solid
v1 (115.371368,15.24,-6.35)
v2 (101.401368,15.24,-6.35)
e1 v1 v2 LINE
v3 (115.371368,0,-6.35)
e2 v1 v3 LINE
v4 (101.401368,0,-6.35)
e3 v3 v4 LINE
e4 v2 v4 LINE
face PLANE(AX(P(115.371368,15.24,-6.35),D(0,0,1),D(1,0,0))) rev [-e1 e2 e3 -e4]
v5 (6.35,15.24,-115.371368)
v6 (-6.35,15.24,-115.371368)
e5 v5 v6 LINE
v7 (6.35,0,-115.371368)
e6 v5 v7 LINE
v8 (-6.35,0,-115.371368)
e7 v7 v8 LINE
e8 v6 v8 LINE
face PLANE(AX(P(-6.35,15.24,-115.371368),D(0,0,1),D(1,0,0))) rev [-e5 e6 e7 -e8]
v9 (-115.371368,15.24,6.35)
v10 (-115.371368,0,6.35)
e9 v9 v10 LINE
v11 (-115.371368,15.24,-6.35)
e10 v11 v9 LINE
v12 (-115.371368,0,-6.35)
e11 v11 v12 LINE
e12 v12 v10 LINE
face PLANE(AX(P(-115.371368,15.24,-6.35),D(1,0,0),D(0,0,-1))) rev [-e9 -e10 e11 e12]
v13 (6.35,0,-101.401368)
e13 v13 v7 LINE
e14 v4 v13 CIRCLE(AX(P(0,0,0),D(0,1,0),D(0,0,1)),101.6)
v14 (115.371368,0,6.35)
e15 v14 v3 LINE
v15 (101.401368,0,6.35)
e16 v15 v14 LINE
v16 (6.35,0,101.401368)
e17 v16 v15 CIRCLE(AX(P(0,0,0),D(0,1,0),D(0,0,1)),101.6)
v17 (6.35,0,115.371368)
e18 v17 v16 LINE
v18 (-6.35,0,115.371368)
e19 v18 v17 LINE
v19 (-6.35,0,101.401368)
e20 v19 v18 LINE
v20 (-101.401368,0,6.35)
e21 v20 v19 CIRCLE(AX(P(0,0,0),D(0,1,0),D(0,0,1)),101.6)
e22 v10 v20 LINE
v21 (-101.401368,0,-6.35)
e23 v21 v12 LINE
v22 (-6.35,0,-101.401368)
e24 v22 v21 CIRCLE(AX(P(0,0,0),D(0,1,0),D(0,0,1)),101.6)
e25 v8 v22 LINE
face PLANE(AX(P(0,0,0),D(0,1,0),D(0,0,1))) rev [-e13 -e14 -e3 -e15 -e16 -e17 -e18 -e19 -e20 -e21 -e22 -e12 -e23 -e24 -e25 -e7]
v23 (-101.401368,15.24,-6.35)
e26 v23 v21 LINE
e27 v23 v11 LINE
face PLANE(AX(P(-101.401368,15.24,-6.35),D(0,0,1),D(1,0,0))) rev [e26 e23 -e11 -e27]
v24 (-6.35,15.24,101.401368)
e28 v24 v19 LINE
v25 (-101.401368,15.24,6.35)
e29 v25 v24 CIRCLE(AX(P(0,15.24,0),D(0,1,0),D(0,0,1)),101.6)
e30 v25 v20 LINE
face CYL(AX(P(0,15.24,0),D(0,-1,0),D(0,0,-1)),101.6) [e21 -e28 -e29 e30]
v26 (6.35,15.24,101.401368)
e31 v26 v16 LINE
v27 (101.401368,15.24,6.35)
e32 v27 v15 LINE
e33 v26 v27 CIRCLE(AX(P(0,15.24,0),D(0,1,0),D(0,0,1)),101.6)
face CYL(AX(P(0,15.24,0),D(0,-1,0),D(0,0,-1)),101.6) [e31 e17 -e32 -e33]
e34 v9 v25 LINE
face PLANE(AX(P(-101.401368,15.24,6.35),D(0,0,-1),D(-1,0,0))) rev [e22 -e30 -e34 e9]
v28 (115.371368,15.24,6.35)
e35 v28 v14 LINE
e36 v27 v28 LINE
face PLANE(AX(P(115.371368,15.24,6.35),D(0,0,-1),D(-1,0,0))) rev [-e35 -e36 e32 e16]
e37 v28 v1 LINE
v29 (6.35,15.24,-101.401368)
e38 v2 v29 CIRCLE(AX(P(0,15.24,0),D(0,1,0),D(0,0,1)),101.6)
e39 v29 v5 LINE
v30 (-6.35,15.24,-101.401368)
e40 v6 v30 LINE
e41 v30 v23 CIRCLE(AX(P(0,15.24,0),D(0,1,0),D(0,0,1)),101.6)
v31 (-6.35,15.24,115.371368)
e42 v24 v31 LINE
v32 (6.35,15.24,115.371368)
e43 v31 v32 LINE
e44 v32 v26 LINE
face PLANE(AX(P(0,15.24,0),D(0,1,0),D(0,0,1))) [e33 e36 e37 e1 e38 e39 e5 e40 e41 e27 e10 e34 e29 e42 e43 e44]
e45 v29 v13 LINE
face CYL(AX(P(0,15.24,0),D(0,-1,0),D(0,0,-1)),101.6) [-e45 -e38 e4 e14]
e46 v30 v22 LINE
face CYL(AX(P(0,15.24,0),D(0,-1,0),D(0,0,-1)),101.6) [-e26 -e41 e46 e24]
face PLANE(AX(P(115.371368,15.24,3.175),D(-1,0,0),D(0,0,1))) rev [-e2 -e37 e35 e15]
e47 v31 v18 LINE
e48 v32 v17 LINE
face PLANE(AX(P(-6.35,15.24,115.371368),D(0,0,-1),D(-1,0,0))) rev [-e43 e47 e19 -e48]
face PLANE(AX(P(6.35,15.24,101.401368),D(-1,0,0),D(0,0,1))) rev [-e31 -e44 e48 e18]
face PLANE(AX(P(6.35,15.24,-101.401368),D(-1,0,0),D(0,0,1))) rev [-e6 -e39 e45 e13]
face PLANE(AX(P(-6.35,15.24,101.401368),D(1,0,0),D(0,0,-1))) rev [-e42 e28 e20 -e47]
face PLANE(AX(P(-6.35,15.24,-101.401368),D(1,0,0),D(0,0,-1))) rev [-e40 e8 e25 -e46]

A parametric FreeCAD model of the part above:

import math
import FreeCAD as App
import Part
import Sketcher
Q = App.Units.Quantity

doc = App.newDocument("Part")
body = doc.addObject("PartDesign::Body", "Body")

sketch1 = doc.addObject("Sketcher::SketchObject", "Sketch")
body.addObject(sketch1)
sketch1.AttachmentSupport = (doc.XZ_Plane, [""])
sketch1.MapMode = "FlatFace"
sketch1.addGeometry([
    Part.LineSegment(App.Vector(6, -115, 0), App.Vector(-6, -115, 0)),
    Part.LineSegment(App.Vector(-6, -115, 0), App.Vector(-6, -101, 0)),
    Part.ArcOfCircle(Part.Circle(App.Vector(0, 0, 0), App.Vector(0, 0, 1), 102), math.radians(-176), math.radians(-94)),
    Part.LineSegment(App.Vector(-101, -6, 0), App.Vector(-115, -6, 0)),
    Part.LineSegment(App.Vector(-115, -6, 0), App.Vector(-115, 6, 0)),
    Part.LineSegment(App.Vector(-115, 6, 0), App.Vector(-101, 6, 0)),
    Part.ArcOfCircle(Part.Circle(App.Vector(0, 0, 0), App.Vector(0, 0, 1), 102), math.radians(94), math.radians(176)),
    Part.LineSegment(App.Vector(-6, 101, 0), App.Vector(-6, 115, 0)),
    Part.LineSegment(App.Vector(-6, 115, 0), App.Vector(6, 115, 0)),
    Part.LineSegment(App.Vector(6, 115, 0), App.Vector(6, 101, 0)),
    Part.ArcOfCircle(Part.Circle(App.Vector(0, 0, 0), App.Vector(0, 0, 1), 102), math.radians(4), math.radians(86)),
    Part.LineSegment(App.Vector(101, 6, 0), App.Vector(115, 6, 0)),
    Part.LineSegment(App.Vector(115, 6, 0), App.Vector(115, -6, 0)),
    Part.LineSegment(App.Vector(115, -6, 0), App.Vector(101, -6, 0)),
    Part.ArcOfCircle(Part.Circle(App.Vector(0, 0, 0), App.Vector(0, 0, 1), 102), math.radians(-86), math.radians(-4)),
    Part.LineSegment(App.Vector(6, -101, 0), App.Vector(6, -115, 0)),
], False)
sketch1.addConstraint([
    Sketcher.Constraint("Coincident", 0, 2, 1, 1),
    Sketcher.Constraint("Coincident", 1, 2, 2, 2),
    Sketcher.Constraint("Coincident", 2, 1, 3, 1),
    Sketcher.Constraint("Coincident", 3, 2, 4, 1),
    Sketcher.Constraint("Coincident", 4, 2, 5, 1),
    Sketcher.Constraint("Coincident", 5, 2, 6, 2),
    Sketcher.Constraint("Coincident", 6, 1, 7, 1),
    Sketcher.Constraint("Coincident", 7, 2, 8, 1),
    Sketcher.Constraint("Coincident", 8, 2, 9, 1),
    Sketcher.Constraint("Coincident", 9, 2, 10, 2),
    Sketcher.Constraint("Coincident", 10, 1, 11, 1),
    Sketcher.Constraint("Coincident", 11, 2, 12, 1),
    Sketcher.Constraint("Coincident", 12, 2, 13, 1),
    Sketcher.Constraint("Coincident", 13, 2, 14, 2),
    Sketcher.Constraint("Coincident", 14, 1, 15, 1),
    Sketcher.Constraint("Coincident", 15, 2, 0, 1),
    Sketcher.Constraint("Horizontal", 0),
    Sketcher.Constraint("Vertical", 1),
    Sketcher.Constraint("Horizontal", 3),
    Sketcher.Constraint("Vertical", 4),
    Sketcher.Constraint("Horizontal", 5),
    Sketcher.Constraint("Vertical", 7),
    Sketcher.Constraint("Horizontal", 8),
    Sketcher.Constraint("Vertical", 9),
    Sketcher.Constraint("Horizontal", 11),
    Sketcher.Constraint("Vertical", 12),
    Sketcher.Constraint("Horizontal", 13),
    Sketcher.Constraint("Vertical", 15),
    Sketcher.Constraint("Coincident", 2, 3, -1, 1),
    Sketcher.Constraint("Coincident", 6, 3, -1, 1),
    Sketcher.Constraint("Coincident", 10, 3, -1, 1),
    Sketcher.Constraint("Coincident", 14, 3, -1, 1),
    Sketcher.Constraint("Equal", 2, 6),
    Sketcher.Constraint("Equal", 6, 10),
    Sketcher.Constraint("Equal", 10, 14),
    Sketcher.Constraint("Symmetric", 0, 2, 8, 2, -1, 1),
    Sketcher.Constraint("Symmetric", 3, 2, 11, 2, -1, 1),
    Sketcher.Constraint("Horizontal", 6, 1, 9, 2),
    Sketcher.Constraint("Horizontal", 5, 2, 10, 1),
    Sketcher.Constraint("Horizontal", 3, 2, 12, 2),
    Sketcher.Constraint("Horizontal", 1, 2, 14, 1),
    Sketcher.Constraint("Equal", 13, 1),
    Sketcher.Constraint("Equal", 8, 4),
    Sketcher.Constraint("Radius", 2, Q("4 in")),
    Sketcher.Constraint("DistanceX", 0, 2, 0, 1, Q("0.5 in")),
    Sketcher.Constraint("DistanceX", 3, 2, 3, 1, Q("0.55 in")),
])
pad1 = doc.addObject("PartDesign::Pad", "Pad")
body.addObject(pad1)
pad1.Profile = sketch1
pad1.Length = Q("0.6 in")
pad1.Reversed = True

doc.recompute()
